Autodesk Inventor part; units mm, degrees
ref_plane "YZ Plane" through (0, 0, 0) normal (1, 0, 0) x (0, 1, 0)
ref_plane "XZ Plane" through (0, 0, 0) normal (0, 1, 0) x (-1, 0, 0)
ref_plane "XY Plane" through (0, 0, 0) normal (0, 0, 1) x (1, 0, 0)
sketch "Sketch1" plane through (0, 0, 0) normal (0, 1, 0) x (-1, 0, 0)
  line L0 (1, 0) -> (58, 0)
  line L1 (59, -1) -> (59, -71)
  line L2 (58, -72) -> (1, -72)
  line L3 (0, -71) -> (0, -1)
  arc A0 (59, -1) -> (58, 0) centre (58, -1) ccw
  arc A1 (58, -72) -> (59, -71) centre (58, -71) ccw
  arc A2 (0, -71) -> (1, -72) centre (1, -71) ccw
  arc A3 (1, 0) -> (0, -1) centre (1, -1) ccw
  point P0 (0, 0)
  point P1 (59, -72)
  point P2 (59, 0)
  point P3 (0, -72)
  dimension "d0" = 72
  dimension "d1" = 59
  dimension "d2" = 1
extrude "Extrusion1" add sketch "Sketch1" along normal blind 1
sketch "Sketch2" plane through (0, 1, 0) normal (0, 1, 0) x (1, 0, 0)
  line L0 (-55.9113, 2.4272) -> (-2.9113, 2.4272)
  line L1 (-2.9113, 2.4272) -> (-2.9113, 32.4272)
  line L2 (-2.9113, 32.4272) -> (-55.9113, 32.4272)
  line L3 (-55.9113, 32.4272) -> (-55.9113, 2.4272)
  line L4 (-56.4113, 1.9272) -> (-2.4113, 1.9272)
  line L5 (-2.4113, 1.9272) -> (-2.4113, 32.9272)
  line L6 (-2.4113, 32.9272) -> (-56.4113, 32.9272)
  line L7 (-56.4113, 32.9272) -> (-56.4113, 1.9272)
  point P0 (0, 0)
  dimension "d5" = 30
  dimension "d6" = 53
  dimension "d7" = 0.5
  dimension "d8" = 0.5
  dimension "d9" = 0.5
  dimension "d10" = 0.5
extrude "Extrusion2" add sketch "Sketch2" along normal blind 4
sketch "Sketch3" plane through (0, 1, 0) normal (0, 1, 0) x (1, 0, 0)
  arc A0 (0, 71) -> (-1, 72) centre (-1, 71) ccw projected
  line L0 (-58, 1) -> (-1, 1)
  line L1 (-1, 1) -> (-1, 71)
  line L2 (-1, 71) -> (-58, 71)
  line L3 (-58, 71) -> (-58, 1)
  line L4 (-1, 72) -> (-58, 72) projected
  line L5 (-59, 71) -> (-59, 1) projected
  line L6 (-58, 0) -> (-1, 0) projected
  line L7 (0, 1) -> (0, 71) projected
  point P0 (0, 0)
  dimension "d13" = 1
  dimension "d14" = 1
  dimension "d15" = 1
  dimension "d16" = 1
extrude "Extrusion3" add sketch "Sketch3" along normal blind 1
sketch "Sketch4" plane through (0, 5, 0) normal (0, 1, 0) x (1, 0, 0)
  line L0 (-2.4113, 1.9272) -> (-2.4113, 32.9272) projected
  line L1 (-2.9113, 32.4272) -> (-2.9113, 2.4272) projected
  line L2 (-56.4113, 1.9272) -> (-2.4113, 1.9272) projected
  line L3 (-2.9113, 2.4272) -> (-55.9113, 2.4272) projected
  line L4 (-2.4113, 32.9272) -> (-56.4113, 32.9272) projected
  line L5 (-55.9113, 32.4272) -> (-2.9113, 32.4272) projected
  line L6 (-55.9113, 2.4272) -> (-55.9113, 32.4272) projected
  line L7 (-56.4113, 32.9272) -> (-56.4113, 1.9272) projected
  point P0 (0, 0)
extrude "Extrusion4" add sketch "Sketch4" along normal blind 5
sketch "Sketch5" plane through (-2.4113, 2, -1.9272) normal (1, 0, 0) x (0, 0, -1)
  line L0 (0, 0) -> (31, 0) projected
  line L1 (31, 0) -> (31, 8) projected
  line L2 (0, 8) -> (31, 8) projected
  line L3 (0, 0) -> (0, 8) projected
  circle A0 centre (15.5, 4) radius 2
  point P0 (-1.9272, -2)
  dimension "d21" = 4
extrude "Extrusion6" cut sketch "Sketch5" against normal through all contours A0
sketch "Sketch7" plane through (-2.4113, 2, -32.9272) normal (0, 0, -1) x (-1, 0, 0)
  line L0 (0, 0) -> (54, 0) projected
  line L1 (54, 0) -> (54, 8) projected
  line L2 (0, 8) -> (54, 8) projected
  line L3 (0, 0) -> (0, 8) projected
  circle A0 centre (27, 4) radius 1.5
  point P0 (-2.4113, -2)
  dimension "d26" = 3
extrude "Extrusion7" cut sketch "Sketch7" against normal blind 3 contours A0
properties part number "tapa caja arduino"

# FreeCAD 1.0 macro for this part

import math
import FreeCAD as App
import Part
import Sketcher

V = App.Vector
Q = App.Units.Quantity


def add_polygon(sketch, points):
    """Adds a closed chain of lines whose ends are joined by coincident constraints."""
    first, n = sketch.GeometryCount, len(points)
    for a, b in zip(points, points[1:] + points[:1]):
        sketch.addGeometry(Part.LineSegment(App.Vector(*a, 0), App.Vector(*b, 0)), False)
    for i in range(n):
        sketch.addConstraint(Sketcher.Constraint("Coincident", first + i, 2, first + (i + 1) % n, 1))

doc = App.newDocument("Part")
body = doc.addObject("PartDesign::Body", "Body")

# Sketch on XZ plane
sketch1 = body.newObject("Sketcher::SketchObject", "Sketch")
sketch1.AttachmentSupport = (doc.getObject("XZ_Plane"), [""])
sketch1.MapMode = "FlatFace"
sketch1.addGeometry(Part.LineSegment(V(-58, 0, 0), V(-1, 0, 0)), False)
sketch1.addGeometry(Part.ArcOfCircle(Part.Circle(V(-1, -1, 0), V(0, 0, 1), 1), math.radians(0), math.radians(90)), False)
sketch1.addGeometry(Part.LineSegment(V(0, -1, 0), V(0, -71, 0)), False)
sketch1.addGeometry(Part.ArcOfCircle(Part.Circle(V(-1, -71, 0), V(0, 0, 1), 1), math.radians(-90), math.radians(0)), False)
sketch1.addGeometry(Part.LineSegment(V(-1, -72, 0), V(-58, -72, 0)), False)
sketch1.addGeometry(Part.ArcOfCircle(Part.Circle(V(-58, -71, 0), V(0, 0, 1), 1), math.radians(180), math.radians(270)), False)
sketch1.addGeometry(Part.LineSegment(V(-59, -71, 0), V(-59, -1, 0)), False)
sketch1.addGeometry(Part.ArcOfCircle(Part.Circle(V(-58, -1, 0), V(0, 0, 1), 1), math.radians(90), math.radians(180)), False)
sketch1.addConstraint(Sketcher.Constraint("Tangent", 0, 2, 1, 2))
sketch1.addConstraint(Sketcher.Constraint("Tangent", 1, 1, 2, 1))
sketch1.addConstraint(Sketcher.Constraint("Tangent", 2, 2, 3, 2))
sketch1.addConstraint(Sketcher.Constraint("Tangent", 3, 1, 4, 1))
sketch1.addConstraint(Sketcher.Constraint("Tangent", 4, 2, 5, 2))
sketch1.addConstraint(Sketcher.Constraint("Tangent", 5, 1, 6, 1))
sketch1.addConstraint(Sketcher.Constraint("Tangent", 6, 2, 7, 2))
sketch1.addConstraint(Sketcher.Constraint("Tangent", 7, 1, 0, 1))
sketch1.addConstraint(Sketcher.Constraint("Horizontal", 0))
sketch1.addConstraint(Sketcher.Constraint("Vertical", 2))
sketch1.addConstraint(Sketcher.Constraint("Horizontal", 4))
sketch1.addConstraint(Sketcher.Constraint("Vertical", 6))
sketch1.addConstraint(Sketcher.Constraint("Equal", 1, 3))
sketch1.addConstraint(Sketcher.Constraint("Equal", 3, 5))
sketch1.addConstraint(Sketcher.Constraint("Equal", 5, 7))
sketch1.addConstraint(Sketcher.Constraint("PointOnObject", 0, 2, -1))
sketch1.addConstraint(Sketcher.Constraint("PointOnObject", 1, 1, -2))
sketch1.addConstraint(Sketcher.Constraint("Radius", 1, Q("1 mm")))
sketch1.addConstraint(Sketcher.Constraint("DistanceY", 3, 1, -1, 1, Q("72 mm")))
sketch1.addConstraint(Sketcher.Constraint("DistanceX", 5, 1, -1, 1, Q("59 mm")))
pad1 = body.newObject("PartDesign::Pad", "Pad")
pad1.Profile = sketch1
pad1.Length = 1
pad1.Reversed = True

# Sketch on XZ plane
sketch2 = body.newObject("Sketcher::SketchObject", "Sketch001")
sketch2.AttachmentSupport = (doc.getObject("XZ_Plane"), [""])
sketch2.MapMode = "FlatFace"
sketch2.AttachmentOffset = App.Placement(V(0, 0, -1), App.Rotation())
add_polygon(sketch2, [(-56, -33), (-56, -2), (-2, -2), (-2, -33)])  # lines 0-3
add_polygon(sketch2, [(-3, -2), (-56, -2), (-56, -32), (-3, -32)])  # lines 4-7
sketch2.addConstraint(Sketcher.Constraint("Vertical", 0))
sketch2.addConstraint(Sketcher.Constraint("Horizontal", 1))
sketch2.addConstraint(Sketcher.Constraint("Vertical", 2))
sketch2.addConstraint(Sketcher.Constraint("Horizontal", 3))
sketch2.addConstraint(Sketcher.Constraint("Horizontal", 4))
sketch2.addConstraint(Sketcher.Constraint("Vertical", 5))
sketch2.addConstraint(Sketcher.Constraint("Horizontal", 6))
sketch2.addConstraint(Sketcher.Constraint("Vertical", 7))
sketch2.addConstraint(Sketcher.Constraint("DistanceX", 4, 2, 4, 1, Q("53 mm")))
sketch2.addConstraint(Sketcher.Constraint("DistanceY", 5, 2, 5, 1, Q("30 mm")))
sketch2.addConstraint(Sketcher.Constraint("DistanceX", 0, 2, 4, 2, Q("0.5 mm")))
sketch2.addConstraint(Sketcher.Constraint("DistanceY", 4, 2, 0, 2, Q("0.5 mm")))
sketch2.addConstraint(Sketcher.Constraint("DistanceY", 3, 2, 5, 2, Q("0.5 mm")))
sketch2.addConstraint(Sketcher.Constraint("DistanceX", 6, 2, 2, 2, Q("0.5 mm")))
sketch2.addConstraint(Sketcher.Constraint("DistanceX", 0, 2, -1, 1, Q("56.4113 mm")))
sketch2.addConstraint(Sketcher.Constraint("DistanceY", 0, 2, -1, 1, Q("1.9272 mm")))
pad2 = body.newObject("PartDesign::Pad", "Pad001")
pad2.Profile = sketch2
pad2.Length = 4
pad2.Reversed = True

# Sketch on XZ plane
sketch3 = body.newObject("Sketcher::SketchObject", "Sketch002")
sketch3.AttachmentSupport = (doc.getObject("XZ_Plane"), [""])
sketch3.MapMode = "FlatFace"
sketch3.AttachmentOffset = App.Placement(V(0, 0, -1), App.Rotation())
add_polygon(sketch3, [(-58, -71), (-58, -1), (-1, -1), (-1, -71)])  # lines 0-3
sketch3.addConstraint(Sketcher.Constraint("Vertical", 0))
sketch3.addConstraint(Sketcher.Constraint("Horizontal", 1))
sketch3.addConstraint(Sketcher.Constraint("Vertical", 2))
sketch3.addConstraint(Sketcher.Constraint("Horizontal", 3))
sketch3.addConstraint(Sketcher.Constraint("DistanceY", 0, 2, -1, 1, Q("1 mm")))
sketch3.addConstraint(Sketcher.Constraint("DistanceX", 1, 2, -1, 1, Q("1 mm")))
sketch3.addConstraint(Sketcher.Constraint("DistanceX", 1, 1, 1, 2, Q("57 mm")))
sketch3.addConstraint(Sketcher.Constraint("DistanceY", 0, 1, 0, 2, Q("70 mm")))
pad3 = body.newObject("PartDesign::Pad", "Pad002")
pad3.Profile = sketch3
pad3.Length = 1
pad3.Reversed = True

# Sketch on XZ plane
sketch4 = body.newObject("Sketcher::SketchObject", "Sketch003")
sketch4.AttachmentSupport = (doc.getObject("XZ_Plane"), [""])
sketch4.MapMode = "FlatFace"
sketch4.AttachmentOffset = App.Placement(V(0, 0, -5), App.Rotation())
add_polygon(sketch4, [(-56, -2), (-2, -2), (-2, -33), (-56, -33)])  # lines 0-3
add_polygon(sketch4, [(-56, -32), (-3, -32), (-3, -2), (-56, -2)])  # lines 4-7
sketch4.addConstraint(Sketcher.Constraint("Horizontal", 0))
sketch4.addConstraint(Sketcher.Constraint("Vertical", 1))
sketch4.addConstraint(Sketcher.Constraint("Horizontal", 2))
sketch4.addConstraint(Sketcher.Constraint("Vertical", 3))
sketch4.addConstraint(Sketcher.Constraint("Horizontal", 4))
sketch4.addConstraint(Sketcher.Constraint("Vertical", 5))
sketch4.addConstraint(Sketcher.Constraint("Horizontal", 6))
sketch4.addConstraint(Sketcher.Constraint("Vertical", 7))
sketch4.addConstraint(Sketcher.Constraint("DistanceX", 0, 1, 0, 2, Q("54 mm")))
sketch4.addConstraint(Sketcher.Constraint("DistanceX", 4, 1, 4, 2, Q("53 mm")))
sketch4.addConstraint(Sketcher.Constraint("DistanceY", 1, 2, 1, 1, Q("31 mm")))
sketch4.addConstraint(Sketcher.Constraint("DistanceY", 5, 1, 5, 2, Q("30 mm")))
sketch4.addConstraint(Sketcher.Constraint("DistanceX", 4, 2, 1, 2, Q("0.5 mm")))
sketch4.addConstraint(Sketcher.Constraint("DistanceY", 1, 2, 4, 2, Q("0.5 mm")))
sketch4.addConstraint(Sketcher.Constraint("DistanceX", 0, 2, -1, 1, Q("2.4113 mm")))
sketch4.addConstraint(Sketcher.Constraint("DistanceY", 0, 2, -1, 1, Q("1.9272 mm")))
pad4 = body.newObject("PartDesign::Pad", "Pad003")
pad4.Profile = sketch4
pad4.Length = 5
pad4.Reversed = True

# Sketch on YZ plane
sketch5 = body.newObject("Sketcher::SketchObject", "Sketch004")
sketch5.AttachmentSupport = (doc.getObject("YZ_Plane"), [""])
sketch5.MapMode = "FlatFace"
sketch5.AttachmentOffset = App.Placement(V(0, 0, -2.4113), App.Rotation())
sketch5.addGeometry(Part.Circle(V(6, -17.4, 0), V(0, 0, 1), 2), False)
sketch5.addConstraint(Sketcher.Constraint("Diameter", 0, Q("4 mm")))
sketch5.addConstraint(Sketcher.Constraint("DistanceX", -1, 1, 0, 3, Q("6 mm")))
sketch5.addConstraint(Sketcher.Constraint("DistanceY", 0, 3, -1, 1, Q("17.4272 mm")))
pocket1 = body.newObject("PartDesign::Pocket", "Pocket")
pocket1.Profile = sketch5
pocket1.Type = "ThroughAll"

# Sketch on XY plane
sketch6 = body.newObject("Sketcher::SketchObject", "Sketch005")
sketch6.AttachmentSupport = (doc.getObject("XY_Plane"), [""])
sketch6.MapMode = "FlatFace"
sketch6.AttachmentOffset = App.Placement(V(0, 0, -32.9272), App.Rotation())
sketch6.addGeometry(Part.Circle(V(-29.4, 6, 0), V(0, 0, 1), 1.5), False)
sketch6.addConstraint(Sketcher.Constraint("Diameter", 0, Q("3 mm")))
sketch6.addConstraint(Sketcher.Constraint("DistanceY", -1, 1, 0, 3, Q("6 mm")))
sketch6.addConstraint(Sketcher.Constraint("DistanceX", 0, 3, -1, 1, Q("29.4113 mm")))
pocket2 = body.newObject("PartDesign::Pocket", "Pocket001")
pocket2.Profile = sketch6
pocket2.Length = 3
pocket2.Reversed = True

doc.recompute()
